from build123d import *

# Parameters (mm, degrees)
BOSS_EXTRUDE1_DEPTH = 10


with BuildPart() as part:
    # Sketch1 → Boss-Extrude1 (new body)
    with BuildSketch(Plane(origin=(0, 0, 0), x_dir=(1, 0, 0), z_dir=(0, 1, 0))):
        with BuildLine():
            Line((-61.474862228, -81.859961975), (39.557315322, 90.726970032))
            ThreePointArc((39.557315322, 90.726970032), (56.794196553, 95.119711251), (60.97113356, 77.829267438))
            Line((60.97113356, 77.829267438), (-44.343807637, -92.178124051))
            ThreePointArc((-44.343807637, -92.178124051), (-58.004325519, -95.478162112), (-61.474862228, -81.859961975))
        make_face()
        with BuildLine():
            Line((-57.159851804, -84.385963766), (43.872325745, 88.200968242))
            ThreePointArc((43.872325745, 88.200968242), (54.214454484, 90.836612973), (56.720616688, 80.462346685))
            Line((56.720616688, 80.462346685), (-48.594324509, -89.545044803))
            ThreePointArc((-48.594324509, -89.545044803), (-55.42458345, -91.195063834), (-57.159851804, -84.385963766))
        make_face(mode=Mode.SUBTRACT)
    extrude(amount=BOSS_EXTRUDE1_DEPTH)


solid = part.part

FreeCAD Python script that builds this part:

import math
import FreeCAD as App
import Part
import Sketcher
Q = App.Units.Quantity

doc = App.newDocument("Part")
body = doc.addObject("PartDesign::Body", "Body")

# Sketch on XZ plane
sketch1 = doc.addObject("Sketcher::SketchObject", "Sketch")
body.addObject(sketch1)
sketch1.AttachmentSupport = (doc.XZ_Plane, [""])
sketch1.MapMode = "FlatFace"
sketch1.addGeometry(Part.LineSegment(App.Vector(39.557315, -90.72697, 0), App.Vector(-61.474862, 81.859962, 0)), False)
sketch1.addGeometry(Part.ArcOfCircle(Part.Circle(App.Vector(-52.844841, 86.911966, 0), App.Vector(0, 0, 1), 10), math.radians(31.777085), math.radians(210.344653)), False)
sketch1.addGeometry(Part.LineSegment(App.Vector(-44.343808, 92.178124, 0), App.Vector(60.971134, -77.829267, 0)), False)
sketch1.addGeometry(Part.ArcOfCircle(Part.Circle(App.Vector(50.344841, -84.411966, 0), App.Vector(0, 0, 1), 12.5), math.radians(-149.655347), math.radians(31.777085)), False)
sketch1.addGeometry(Part.LineSegment(App.Vector(-57.159852, 84.385964, 0), App.Vector(43.872326, -88.200968, 0)), False)
sketch1.addGeometry(Part.ArcOfCircle(Part.Circle(App.Vector(50.344841, -84.411966, 0), App.Vector(0, 0, 1), 7.5), math.radians(-149.655347), math.radians(31.777085)), False)
sketch1.addGeometry(Part.LineSegment(App.Vector(56.720617, -80.462347, 0), App.Vector(-48.594325, 89.545045, 0)), False)
sketch1.addGeometry(Part.ArcOfCircle(Part.Circle(App.Vector(-52.844841, 86.911966, 0), App.Vector(0, 0, 1), 5), math.radians(31.777085), math.radians(210.344653)), False)
sketch1.addConstraint(Sketcher.Constraint("Coincident", 0, 2, 1, 2))
sketch1.addConstraint(Sketcher.Constraint("Coincident", 1, 1, 2, 1))
sketch1.addConstraint(Sketcher.Constraint("Coincident", 2, 2, 3, 2))
sketch1.addConstraint(Sketcher.Constraint("Coincident", 3, 1, 0, 1))
sketch1.addConstraint(Sketcher.Constraint("Coincident", 4, 2, 5, 1))
sketch1.addConstraint(Sketcher.Constraint("Coincident", 5, 2, 6, 1))
sketch1.addConstraint(Sketcher.Constraint("Coincident", 6, 2, 7, 1))
sketch1.addConstraint(Sketcher.Constraint("Coincident", 7, 2, 4, 1))
sketch1.addConstraint(Sketcher.Constraint("Coincident", 5, 3, 3, 3))
sketch1.addConstraint(Sketcher.Constraint("Coincident", 7, 3, 1, 3))
sketch1.addConstraint(Sketcher.Constraint("Radius", 1, Q("10 mm")))
sketch1.addConstraint(Sketcher.Constraint("Radius", 7, Q("5 mm")))
sketch1.addConstraint(Sketcher.Constraint("Radius", 3, Q("12.5 mm")))
sketch1.addConstraint(Sketcher.Constraint("Radius", 5, Q("7.5 mm")))
sketch1.addConstraint(Sketcher.Constraint("DistanceY", 3, 1, 4, 2, Q("2.526002 mm")))
sketch1.addConstraint(Sketcher.Constraint("DistanceY", 7, 2, 1, 3, Q("2.526002 mm")))
sketch1.addConstraint(Sketcher.Constraint("DistanceY", 0, 2, 7, 2, Q("2.526002 mm")))
sketch1.addConstraint(Sketcher.Constraint("DistanceY", 3, 3, 2, 2, Q("6.582698 mm")))
sketch1.addConstraint(Sketcher.Constraint("DistanceY", 4, 2, 2, 2, Q("10.371701 mm")))
sketch1.addConstraint(Sketcher.Constraint("DistanceX", 3, 1, 5, 2, Q("17.163301 mm")))
sketch1.addConstraint(Sketcher.Constraint("DistanceX", 1, 3, -1, 1, Q("52.844841 mm")))
sketch1.addConstraint(Sketcher.Constraint("DistanceX", -1, 1, 3, 3, Q("50.344841 mm")))
sketch1.addConstraint(Sketcher.Constraint("DistanceY", -1, 1, 0, 2, Q("81.859962 mm")))
sketch1.addConstraint(Sketcher.Constraint("DistanceY", 3, 1, -1, 1, Q("90.72697 mm")))
sketch1.addConstraint(Sketcher.Constraint("DistanceY", 7, 3, 1, 1, Q("5.266158 mm")))
sketch1.addConstraint(Sketcher.Constraint("DistanceY", 7, 3, 6, 2, Q("2.633079 mm")))
pad1 = doc.addObject("PartDesign::Pad", "Pad")
body.addObject(pad1)
pad1.Profile = sketch1
pad1.Length = 10
pad1.Reversed = True

doc.recompute()
